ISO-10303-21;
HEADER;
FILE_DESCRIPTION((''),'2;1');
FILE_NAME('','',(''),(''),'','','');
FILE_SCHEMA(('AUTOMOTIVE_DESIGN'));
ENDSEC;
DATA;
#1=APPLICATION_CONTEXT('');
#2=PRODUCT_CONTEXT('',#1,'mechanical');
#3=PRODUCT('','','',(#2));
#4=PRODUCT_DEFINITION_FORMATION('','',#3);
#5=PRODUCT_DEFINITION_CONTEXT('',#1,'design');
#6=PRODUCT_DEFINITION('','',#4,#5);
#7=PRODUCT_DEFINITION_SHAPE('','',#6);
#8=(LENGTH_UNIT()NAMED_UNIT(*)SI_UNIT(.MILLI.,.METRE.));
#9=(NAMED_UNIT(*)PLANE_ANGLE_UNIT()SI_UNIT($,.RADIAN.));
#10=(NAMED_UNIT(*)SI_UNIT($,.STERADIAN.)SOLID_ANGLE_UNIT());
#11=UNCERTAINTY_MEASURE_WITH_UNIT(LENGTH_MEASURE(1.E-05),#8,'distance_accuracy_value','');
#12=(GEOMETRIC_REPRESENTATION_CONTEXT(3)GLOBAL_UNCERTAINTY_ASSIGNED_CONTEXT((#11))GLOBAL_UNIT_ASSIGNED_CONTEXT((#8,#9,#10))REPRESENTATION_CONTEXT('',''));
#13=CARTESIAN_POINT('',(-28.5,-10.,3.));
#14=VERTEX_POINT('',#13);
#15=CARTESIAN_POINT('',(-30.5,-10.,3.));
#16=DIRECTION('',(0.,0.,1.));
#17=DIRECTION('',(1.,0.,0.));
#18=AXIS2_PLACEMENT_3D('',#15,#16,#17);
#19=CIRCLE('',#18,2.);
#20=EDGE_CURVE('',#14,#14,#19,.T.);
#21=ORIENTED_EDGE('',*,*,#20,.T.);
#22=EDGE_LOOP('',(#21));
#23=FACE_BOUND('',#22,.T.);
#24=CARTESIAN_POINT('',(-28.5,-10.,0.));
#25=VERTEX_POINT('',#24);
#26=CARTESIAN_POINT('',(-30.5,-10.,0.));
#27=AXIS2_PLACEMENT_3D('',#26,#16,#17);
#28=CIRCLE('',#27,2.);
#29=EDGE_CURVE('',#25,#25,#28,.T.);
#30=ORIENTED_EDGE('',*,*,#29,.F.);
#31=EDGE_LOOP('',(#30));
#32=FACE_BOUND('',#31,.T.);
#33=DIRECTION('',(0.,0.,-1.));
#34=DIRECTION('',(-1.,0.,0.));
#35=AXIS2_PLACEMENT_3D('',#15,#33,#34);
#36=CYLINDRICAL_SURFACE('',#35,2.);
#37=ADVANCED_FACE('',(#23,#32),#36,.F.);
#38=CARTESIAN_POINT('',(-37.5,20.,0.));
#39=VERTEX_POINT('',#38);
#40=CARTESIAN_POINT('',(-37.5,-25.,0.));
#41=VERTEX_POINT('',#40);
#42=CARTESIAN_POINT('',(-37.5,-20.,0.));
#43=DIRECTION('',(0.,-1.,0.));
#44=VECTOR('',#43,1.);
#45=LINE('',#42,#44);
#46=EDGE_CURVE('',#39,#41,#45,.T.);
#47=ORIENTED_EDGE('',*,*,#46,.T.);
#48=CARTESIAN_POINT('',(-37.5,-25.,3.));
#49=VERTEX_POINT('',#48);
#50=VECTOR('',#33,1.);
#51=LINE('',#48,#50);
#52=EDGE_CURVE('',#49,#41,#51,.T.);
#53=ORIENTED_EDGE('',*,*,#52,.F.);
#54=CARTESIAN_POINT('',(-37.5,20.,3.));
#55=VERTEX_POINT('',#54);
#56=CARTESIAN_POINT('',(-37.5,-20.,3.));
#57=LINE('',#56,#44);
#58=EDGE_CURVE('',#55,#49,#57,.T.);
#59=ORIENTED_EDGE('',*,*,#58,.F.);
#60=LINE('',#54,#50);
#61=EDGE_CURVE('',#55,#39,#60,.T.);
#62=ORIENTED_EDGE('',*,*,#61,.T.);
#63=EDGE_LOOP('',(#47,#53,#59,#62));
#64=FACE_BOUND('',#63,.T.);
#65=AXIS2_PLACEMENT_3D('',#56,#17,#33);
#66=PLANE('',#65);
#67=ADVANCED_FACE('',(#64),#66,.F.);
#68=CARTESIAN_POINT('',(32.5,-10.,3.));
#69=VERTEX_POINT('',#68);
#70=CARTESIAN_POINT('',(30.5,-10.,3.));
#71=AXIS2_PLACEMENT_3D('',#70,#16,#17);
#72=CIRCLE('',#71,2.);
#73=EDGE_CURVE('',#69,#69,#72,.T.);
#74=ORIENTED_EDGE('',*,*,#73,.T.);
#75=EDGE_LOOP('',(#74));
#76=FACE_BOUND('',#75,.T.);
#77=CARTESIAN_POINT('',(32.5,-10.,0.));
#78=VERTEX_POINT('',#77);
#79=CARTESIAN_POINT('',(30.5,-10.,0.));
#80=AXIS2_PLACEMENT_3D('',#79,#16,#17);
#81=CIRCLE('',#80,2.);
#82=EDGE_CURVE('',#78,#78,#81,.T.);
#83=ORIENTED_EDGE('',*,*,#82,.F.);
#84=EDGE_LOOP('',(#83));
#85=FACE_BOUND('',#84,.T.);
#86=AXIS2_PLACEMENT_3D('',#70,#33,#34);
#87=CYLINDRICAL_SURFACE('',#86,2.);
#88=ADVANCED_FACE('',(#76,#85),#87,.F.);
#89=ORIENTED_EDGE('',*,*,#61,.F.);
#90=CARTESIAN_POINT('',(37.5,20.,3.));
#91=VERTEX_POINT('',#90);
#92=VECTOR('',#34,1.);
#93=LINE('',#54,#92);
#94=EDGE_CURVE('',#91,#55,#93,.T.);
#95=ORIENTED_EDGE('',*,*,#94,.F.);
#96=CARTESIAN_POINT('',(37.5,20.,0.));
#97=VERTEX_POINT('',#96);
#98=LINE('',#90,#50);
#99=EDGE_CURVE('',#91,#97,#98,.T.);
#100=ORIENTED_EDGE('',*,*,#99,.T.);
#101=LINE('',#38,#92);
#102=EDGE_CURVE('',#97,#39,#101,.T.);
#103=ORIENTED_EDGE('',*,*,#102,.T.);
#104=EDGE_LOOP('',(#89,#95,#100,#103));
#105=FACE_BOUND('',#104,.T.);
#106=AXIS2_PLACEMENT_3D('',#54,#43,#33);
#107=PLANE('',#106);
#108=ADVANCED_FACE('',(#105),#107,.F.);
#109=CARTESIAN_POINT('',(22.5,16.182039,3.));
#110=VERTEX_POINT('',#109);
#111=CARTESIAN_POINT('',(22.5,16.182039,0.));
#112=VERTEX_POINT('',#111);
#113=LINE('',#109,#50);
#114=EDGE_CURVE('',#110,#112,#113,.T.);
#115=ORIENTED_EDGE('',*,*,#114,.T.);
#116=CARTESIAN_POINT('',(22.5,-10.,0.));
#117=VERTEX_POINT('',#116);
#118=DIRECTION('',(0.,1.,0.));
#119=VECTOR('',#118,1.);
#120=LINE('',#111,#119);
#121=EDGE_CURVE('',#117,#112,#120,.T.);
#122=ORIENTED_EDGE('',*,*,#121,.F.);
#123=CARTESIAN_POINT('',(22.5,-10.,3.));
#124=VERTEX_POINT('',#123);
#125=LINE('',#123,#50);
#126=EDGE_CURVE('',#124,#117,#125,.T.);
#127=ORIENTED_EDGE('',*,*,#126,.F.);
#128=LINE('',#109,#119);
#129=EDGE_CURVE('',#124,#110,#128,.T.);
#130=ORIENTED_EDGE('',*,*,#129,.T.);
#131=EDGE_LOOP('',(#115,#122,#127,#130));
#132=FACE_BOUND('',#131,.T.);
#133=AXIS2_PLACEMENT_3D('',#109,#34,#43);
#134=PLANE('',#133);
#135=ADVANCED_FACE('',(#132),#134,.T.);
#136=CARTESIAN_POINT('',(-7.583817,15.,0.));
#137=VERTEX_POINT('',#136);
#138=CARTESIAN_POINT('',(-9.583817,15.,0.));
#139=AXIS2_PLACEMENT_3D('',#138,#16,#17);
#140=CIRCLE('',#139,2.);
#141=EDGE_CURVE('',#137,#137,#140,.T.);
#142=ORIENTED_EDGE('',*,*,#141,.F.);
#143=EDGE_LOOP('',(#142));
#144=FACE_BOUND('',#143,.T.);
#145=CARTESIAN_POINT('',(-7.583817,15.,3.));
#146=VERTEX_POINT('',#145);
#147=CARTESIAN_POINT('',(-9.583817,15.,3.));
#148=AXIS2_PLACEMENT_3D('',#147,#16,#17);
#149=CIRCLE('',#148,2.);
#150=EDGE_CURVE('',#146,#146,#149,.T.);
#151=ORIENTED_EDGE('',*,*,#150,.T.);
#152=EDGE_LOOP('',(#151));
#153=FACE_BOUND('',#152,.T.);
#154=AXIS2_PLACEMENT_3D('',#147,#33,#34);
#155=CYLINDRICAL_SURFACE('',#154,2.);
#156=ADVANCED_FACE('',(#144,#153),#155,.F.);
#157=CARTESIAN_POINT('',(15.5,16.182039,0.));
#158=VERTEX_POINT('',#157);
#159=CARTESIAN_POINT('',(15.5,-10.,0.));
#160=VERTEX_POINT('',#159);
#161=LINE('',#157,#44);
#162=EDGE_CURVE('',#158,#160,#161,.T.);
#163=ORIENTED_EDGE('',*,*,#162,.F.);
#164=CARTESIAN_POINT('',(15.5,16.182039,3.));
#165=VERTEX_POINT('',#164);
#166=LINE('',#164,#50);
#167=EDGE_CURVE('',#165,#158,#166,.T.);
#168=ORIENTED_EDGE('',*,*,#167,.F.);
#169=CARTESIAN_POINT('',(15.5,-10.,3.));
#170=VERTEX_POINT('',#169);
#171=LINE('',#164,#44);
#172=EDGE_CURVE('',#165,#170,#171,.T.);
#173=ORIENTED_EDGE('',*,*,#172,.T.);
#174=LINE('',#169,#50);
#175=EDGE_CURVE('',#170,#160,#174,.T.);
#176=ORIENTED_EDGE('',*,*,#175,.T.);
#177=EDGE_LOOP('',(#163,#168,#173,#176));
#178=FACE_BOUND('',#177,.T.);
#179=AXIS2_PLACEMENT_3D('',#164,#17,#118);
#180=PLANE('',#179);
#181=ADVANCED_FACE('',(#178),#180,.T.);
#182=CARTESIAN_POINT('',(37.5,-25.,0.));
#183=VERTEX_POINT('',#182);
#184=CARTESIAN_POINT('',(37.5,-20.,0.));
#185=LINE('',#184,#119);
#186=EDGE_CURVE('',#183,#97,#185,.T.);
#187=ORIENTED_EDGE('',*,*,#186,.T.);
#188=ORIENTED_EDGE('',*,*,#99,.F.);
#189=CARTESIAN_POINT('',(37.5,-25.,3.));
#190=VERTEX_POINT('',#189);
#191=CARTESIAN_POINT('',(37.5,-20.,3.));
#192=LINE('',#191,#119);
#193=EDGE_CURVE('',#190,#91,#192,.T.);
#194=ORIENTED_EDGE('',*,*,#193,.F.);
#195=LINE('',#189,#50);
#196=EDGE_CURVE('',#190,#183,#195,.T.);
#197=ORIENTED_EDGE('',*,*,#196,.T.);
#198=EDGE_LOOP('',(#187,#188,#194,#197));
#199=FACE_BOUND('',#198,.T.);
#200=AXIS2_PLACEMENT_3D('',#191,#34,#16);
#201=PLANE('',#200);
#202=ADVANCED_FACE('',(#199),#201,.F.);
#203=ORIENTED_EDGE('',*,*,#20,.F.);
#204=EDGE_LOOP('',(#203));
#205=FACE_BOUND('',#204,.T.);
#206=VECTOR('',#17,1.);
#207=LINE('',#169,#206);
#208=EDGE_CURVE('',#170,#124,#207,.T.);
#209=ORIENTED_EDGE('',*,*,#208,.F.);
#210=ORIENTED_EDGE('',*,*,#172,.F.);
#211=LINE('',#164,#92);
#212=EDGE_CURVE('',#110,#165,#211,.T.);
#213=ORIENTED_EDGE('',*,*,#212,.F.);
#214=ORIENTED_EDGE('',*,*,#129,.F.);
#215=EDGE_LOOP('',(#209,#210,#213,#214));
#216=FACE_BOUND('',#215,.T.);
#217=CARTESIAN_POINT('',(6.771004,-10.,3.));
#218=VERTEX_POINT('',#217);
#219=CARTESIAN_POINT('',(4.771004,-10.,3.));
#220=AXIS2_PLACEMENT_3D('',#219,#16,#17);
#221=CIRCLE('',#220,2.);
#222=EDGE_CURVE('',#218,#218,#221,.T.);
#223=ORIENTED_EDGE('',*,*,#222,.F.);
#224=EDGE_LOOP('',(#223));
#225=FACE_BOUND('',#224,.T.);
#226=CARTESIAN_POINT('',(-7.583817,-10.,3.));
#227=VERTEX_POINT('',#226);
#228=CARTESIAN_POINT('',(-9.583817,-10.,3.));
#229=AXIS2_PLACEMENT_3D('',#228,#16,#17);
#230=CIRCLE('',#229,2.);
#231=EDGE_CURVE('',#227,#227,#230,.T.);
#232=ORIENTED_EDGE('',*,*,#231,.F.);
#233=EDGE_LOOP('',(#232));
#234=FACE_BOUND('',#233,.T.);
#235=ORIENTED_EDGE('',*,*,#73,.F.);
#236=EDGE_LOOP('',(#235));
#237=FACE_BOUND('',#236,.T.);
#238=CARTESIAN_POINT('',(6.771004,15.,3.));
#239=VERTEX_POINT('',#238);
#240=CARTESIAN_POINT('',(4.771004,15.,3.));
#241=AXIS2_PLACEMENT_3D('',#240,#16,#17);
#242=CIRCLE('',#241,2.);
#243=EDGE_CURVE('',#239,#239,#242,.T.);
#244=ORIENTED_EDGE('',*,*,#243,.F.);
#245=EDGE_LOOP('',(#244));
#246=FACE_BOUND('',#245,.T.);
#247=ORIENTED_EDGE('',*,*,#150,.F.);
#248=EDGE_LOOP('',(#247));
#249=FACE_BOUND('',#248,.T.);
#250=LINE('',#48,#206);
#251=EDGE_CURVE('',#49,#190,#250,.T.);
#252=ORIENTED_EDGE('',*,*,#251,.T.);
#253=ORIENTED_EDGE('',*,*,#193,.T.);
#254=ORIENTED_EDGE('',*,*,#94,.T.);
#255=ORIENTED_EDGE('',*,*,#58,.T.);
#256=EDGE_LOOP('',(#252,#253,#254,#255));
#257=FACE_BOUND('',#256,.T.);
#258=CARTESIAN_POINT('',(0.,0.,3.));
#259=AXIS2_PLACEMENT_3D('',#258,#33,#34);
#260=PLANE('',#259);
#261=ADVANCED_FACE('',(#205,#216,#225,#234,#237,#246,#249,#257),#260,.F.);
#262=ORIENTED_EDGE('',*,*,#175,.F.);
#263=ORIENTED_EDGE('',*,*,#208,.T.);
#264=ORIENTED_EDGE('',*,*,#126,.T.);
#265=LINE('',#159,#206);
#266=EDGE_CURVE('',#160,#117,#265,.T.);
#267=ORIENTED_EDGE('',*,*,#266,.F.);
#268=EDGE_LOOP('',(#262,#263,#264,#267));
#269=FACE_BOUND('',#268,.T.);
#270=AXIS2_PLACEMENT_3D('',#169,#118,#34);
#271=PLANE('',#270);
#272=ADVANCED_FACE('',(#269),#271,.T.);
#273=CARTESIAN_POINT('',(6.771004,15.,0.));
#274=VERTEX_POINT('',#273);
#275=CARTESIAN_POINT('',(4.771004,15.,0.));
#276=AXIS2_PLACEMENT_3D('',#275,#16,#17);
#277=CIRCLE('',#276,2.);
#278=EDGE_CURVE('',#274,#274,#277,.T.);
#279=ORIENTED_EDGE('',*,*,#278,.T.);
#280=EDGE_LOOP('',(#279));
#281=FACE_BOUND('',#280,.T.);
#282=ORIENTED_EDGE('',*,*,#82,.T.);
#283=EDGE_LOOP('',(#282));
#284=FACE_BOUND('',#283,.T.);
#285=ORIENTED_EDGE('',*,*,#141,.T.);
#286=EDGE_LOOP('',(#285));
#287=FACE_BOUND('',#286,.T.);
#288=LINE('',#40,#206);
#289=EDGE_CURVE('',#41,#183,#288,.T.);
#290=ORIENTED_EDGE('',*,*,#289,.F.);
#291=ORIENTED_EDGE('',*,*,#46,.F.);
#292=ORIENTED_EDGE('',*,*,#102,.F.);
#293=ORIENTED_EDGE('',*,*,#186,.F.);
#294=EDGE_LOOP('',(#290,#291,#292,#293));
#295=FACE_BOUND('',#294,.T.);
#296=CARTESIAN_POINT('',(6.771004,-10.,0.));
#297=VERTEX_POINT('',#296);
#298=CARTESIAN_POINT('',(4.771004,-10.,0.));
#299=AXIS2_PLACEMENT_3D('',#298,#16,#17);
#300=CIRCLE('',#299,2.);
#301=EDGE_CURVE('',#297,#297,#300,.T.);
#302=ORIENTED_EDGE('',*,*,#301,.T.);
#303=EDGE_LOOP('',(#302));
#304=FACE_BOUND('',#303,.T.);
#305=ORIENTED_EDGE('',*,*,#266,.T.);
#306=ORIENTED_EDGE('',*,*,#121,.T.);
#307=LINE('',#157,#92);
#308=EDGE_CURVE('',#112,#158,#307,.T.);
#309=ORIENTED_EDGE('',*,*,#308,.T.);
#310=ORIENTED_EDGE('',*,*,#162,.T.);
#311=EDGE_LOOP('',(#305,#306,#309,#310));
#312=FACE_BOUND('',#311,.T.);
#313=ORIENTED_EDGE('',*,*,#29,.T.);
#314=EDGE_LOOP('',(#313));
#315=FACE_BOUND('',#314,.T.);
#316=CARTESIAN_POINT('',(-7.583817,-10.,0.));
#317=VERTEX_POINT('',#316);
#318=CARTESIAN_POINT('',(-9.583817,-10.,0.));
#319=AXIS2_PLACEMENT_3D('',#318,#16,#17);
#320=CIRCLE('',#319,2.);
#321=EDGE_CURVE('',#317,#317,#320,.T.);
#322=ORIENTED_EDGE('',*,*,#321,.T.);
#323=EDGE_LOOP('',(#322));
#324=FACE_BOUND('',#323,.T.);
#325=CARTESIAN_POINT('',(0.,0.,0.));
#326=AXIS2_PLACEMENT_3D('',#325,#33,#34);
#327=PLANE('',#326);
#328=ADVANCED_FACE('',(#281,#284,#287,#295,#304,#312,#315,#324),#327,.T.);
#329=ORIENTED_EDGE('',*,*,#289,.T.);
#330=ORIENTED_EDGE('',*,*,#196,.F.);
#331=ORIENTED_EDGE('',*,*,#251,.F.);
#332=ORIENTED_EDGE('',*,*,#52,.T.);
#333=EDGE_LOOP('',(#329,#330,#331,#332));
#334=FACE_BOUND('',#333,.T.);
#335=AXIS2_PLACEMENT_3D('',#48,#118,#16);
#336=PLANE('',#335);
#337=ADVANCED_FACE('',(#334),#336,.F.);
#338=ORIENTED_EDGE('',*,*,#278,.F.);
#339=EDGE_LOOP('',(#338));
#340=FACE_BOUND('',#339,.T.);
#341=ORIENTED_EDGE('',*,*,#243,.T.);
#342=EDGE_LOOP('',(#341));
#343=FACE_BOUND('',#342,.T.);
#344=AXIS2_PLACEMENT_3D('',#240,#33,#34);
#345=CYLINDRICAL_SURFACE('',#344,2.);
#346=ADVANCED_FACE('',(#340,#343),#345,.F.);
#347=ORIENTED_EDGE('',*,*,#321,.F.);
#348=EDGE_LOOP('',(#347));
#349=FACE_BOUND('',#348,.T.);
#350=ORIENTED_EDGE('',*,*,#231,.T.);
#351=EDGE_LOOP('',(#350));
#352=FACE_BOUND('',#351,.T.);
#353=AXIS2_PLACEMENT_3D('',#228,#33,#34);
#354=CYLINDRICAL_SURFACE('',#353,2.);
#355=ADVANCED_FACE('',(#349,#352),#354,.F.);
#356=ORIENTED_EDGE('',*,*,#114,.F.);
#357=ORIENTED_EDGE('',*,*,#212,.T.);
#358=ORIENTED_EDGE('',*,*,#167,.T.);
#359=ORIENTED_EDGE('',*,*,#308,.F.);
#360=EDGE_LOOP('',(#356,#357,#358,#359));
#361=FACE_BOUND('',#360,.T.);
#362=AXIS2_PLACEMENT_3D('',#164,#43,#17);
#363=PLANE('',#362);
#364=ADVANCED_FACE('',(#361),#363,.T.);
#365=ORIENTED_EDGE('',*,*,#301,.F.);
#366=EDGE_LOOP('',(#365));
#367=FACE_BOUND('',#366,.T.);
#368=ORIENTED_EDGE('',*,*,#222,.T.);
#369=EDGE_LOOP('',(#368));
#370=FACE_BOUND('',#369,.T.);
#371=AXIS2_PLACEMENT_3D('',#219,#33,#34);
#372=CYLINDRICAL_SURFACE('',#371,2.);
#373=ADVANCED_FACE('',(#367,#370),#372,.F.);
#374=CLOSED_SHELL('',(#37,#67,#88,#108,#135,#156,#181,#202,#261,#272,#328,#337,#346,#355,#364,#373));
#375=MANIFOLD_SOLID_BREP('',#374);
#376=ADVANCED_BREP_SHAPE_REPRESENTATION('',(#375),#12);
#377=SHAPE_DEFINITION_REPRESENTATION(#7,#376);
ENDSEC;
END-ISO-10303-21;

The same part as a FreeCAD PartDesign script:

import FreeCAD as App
import Part
import Sketcher


def add_polygon(sketch, points):
    """Adds a closed chain of lines whose ends are joined by coincident constraints."""
    first, n = sketch.GeometryCount, len(points)
    for a, b in zip(points, points[1:] + points[:1]):
        sketch.addGeometry(Part.LineSegment(App.Vector(*a, 0), App.Vector(*b, 0)), False)
    for i in range(n):
        sketch.addConstraint(Sketcher.Constraint("Coincident", first + i, 2, first + (i + 1) % n, 1))

doc = App.newDocument("Part")
body = doc.addObject("PartDesign::Body", "Body")

sketch1 = body.newObject("Sketcher::SketchObject", "Sketch")
sketch1.AttachmentSupport = (doc.getObject("XY_Plane"), [""])
sketch1.MapMode = "FlatFace"
add_polygon(sketch1, [(-37.5, 20), (-37.5, -20), (37.5, -20), (37.5, 20)])
sketch1.addGeometry(Part.Circle(App.Vector(-30.5, -10, 0), App.Vector(0, 0, 1), 2), False)
sketch1.addGeometry(Part.Circle(App.Vector(-9.6, -10, 0), App.Vector(0, 0, 1), 2), False)
sketch1.addGeometry(Part.Circle(App.Vector(4.8, -10, 0), App.Vector(0, 0, 1), 2), False)
sketch1.addGeometry(Part.Circle(App.Vector(30.5, -10, 0), App.Vector(0, 0, 1), 2), False)
sketch1.addGeometry(Part.Circle(App.Vector(-9.6, 15, 0), App.Vector(0, 0, 1), 2), False)
add_polygon(sketch1, [(22.5, -10), (15.5, -10), (15.5, 16.2), (22.5, 16.2)])
sketch1.addGeometry(Part.Circle(App.Vector(4.8, 15, 0), App.Vector(0, 0, 1), 2), False)
sketch1.addConstraint([
    Sketcher.Constraint("Vertical", 0),
    Sketcher.Constraint("Horizontal", 1),
    Sketcher.Constraint("Vertical", 2),
    Sketcher.Constraint("Horizontal", 3),
    Sketcher.Constraint("Horizontal", 9),
    Sketcher.Constraint("Vertical", 10),
    Sketcher.Constraint("Horizontal", 11),
    Sketcher.Constraint("Vertical", 12),
    Sketcher.Constraint("Equal", 4, 5),
    Sketcher.Constraint("Equal", 5, 6),
    Sketcher.Constraint("Equal", 6, 7),
    Sketcher.Constraint("Equal", 7, 8),
    Sketcher.Constraint("Equal", 8, 13),
    Sketcher.Constraint("Symmetric", 0, 2, 2, 2, -1, 1),
    Sketcher.Constraint("Symmetric", 4, 3, 7, 3, -2),
    Sketcher.Constraint("Horizontal", 4, 3, 5, 3),
    Sketcher.Constraint("Horizontal", 5, 3, 6, 3),
    Sketcher.Constraint("Horizontal", 8, 3, 13, 3),
    Sketcher.Constraint("Horizontal", 7, 3, 9, 2),
    Sketcher.Constraint("Vertical", 5, 3, 8, 3),
    Sketcher.Constraint("Vertical", 6, 3, 13, 3),
    Sketcher.Constraint("Diameter", 4, 4.0),
    Sketcher.Constraint("DistanceX", 1, 1, 1, 2, 75.0),
    Sketcher.Constraint("DistanceX", 9, 2, 9, 1, 7.0),
    Sketcher.Constraint("DistanceY", 0, 2, 0, 1, 40.0),
    Sketcher.Constraint("DistanceY", 4, 3, -1, 1, 10.0),
    Sketcher.Constraint("DistanceY", -1, 1, 8, 3, 15.0),
    Sketcher.Constraint("DistanceX", 4, 3, 7, 3, 61.0),
    Sketcher.Constraint("DistanceX", 9, 2, 7, 3, 15.0),
    Sketcher.Constraint("DistanceY", 10, 1, 10, 2, 26.182039),
    Sketcher.Constraint("DistanceX", 5, 3, 6, 3, 14.354821),
    Sketcher.Constraint("DistanceX", 5, 3, -1, 1, 9.583817),
])
pad1 = body.newObject("PartDesign::Pad", "Pad")
pad1.Profile = sketch1
pad1.Length = 3

sketch2 = body.newObject("Sketcher::SketchObject", "Sketch001")
sketch2.AttachmentSupport = (doc.getObject("XY_Plane"), [""])
sketch2.MapMode = "FlatFace"
add_polygon(sketch2, [(-38, -20), (-38, -25), (38, -25), (38, -20)])
sketch2.addConstraint([
    Sketcher.Constraint("Vertical", 0),
    Sketcher.Constraint("Horizontal", 1),
    Sketcher.Constraint("Vertical", 2),
    Sketcher.Constraint("Horizontal", 3),
    Sketcher.Constraint("DistanceX", 1, 1, 1, 2, 75.0),
    Sketcher.Constraint("DistanceY", 0, 2, 0, 1, 5.0),
    Sketcher.Constraint("DistanceY", 0, 2, -1, 1, 25.0),
    Sketcher.Constraint("DistanceX", 0, 2, -1, 1, 37.5),
])
pad2 = body.newObject("PartDesign::Pad", "Pad001")
pad2.Profile = sketch2
pad2.Length = 3

doc.recompute()
